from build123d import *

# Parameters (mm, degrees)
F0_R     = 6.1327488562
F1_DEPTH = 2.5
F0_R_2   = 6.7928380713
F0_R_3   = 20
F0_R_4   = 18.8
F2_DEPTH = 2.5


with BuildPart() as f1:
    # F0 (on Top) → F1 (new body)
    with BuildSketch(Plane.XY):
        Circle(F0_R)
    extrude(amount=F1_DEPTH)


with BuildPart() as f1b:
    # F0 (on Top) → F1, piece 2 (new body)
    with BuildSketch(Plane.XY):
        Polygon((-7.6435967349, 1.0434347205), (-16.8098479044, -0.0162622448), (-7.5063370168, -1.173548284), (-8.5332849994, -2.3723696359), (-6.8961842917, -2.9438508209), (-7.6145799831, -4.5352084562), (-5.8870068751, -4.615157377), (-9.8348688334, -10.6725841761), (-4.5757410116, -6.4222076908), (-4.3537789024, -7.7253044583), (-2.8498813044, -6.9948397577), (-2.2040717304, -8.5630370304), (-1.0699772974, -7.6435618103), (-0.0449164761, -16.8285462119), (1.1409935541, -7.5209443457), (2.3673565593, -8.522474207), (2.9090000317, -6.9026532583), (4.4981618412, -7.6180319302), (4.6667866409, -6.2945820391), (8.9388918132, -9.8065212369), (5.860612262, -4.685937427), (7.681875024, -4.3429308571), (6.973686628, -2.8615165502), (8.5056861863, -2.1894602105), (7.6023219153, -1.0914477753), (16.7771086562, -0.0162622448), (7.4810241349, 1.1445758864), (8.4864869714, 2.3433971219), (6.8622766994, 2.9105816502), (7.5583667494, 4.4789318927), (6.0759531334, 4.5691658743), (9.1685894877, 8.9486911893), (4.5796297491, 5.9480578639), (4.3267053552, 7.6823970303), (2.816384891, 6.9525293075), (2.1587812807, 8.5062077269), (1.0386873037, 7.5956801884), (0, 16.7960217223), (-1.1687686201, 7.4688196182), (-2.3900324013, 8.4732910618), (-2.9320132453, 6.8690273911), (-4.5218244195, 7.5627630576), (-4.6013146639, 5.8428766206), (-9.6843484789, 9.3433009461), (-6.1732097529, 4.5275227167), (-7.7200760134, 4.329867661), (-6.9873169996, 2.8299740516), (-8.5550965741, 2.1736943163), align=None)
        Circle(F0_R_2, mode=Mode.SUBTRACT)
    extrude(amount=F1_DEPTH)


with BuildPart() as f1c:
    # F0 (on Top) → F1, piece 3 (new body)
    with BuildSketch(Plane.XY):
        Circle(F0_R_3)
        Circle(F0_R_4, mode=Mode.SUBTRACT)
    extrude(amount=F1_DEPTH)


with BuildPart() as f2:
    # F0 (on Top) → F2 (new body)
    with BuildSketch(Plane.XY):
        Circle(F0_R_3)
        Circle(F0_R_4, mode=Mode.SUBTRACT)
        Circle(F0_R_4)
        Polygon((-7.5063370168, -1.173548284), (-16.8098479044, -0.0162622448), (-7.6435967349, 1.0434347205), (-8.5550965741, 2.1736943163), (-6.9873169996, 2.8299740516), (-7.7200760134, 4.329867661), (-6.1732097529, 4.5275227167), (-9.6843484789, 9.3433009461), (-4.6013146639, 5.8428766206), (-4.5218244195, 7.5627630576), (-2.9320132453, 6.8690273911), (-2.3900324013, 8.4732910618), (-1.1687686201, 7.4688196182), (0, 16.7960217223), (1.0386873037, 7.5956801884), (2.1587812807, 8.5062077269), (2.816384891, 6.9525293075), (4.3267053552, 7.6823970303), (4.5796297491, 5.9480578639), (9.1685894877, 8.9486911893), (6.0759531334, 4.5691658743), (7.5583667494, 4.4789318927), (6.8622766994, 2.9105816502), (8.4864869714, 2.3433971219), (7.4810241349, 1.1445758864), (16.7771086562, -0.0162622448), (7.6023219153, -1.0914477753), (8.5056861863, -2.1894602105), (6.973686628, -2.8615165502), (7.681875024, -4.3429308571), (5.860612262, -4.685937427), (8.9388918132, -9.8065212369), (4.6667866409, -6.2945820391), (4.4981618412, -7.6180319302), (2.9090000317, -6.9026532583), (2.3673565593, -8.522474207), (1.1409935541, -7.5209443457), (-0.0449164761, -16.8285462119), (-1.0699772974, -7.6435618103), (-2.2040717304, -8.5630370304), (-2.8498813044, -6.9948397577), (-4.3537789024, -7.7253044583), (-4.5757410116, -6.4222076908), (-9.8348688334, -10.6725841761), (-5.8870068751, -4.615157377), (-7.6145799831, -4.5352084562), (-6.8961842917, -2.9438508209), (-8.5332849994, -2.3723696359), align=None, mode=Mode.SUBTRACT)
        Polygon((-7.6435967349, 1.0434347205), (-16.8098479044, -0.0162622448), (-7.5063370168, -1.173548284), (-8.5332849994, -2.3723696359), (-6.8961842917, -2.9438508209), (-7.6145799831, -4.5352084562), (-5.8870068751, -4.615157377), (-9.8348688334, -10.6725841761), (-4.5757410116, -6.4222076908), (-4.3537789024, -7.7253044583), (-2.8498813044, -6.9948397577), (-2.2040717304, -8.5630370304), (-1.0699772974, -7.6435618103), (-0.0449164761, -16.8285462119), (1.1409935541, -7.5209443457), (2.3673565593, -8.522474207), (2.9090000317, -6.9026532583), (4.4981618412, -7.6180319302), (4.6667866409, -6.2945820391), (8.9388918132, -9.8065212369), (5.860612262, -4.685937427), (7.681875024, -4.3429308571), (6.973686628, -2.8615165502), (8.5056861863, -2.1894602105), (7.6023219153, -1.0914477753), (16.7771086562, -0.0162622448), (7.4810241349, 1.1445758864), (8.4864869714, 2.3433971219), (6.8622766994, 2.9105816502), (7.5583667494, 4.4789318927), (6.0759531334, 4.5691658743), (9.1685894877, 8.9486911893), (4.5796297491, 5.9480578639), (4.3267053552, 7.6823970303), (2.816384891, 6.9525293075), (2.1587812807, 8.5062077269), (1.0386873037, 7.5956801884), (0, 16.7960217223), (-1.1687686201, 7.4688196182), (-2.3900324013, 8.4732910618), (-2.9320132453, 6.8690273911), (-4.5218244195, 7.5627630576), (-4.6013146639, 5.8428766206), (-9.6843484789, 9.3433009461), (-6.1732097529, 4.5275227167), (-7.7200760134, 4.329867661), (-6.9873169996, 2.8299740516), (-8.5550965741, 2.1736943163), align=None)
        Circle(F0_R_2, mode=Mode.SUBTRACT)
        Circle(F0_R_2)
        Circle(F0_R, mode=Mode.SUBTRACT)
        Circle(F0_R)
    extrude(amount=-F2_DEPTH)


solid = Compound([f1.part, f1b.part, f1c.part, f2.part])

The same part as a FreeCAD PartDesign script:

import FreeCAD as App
import Part
import Sketcher

V = App.Vector
Q = App.Units.Quantity

doc = App.newDocument("Part")
body = doc.addObject("PartDesign::Body", "Body")

sketch1 = body.newObject("Sketcher::SketchObject", "Sketch")
sketch1.AttachmentSupport = (doc.getObject("XY_Plane"), [""])
sketch1.MapMode = "FlatFace"
sketch1.addGeometry(Part.Circle(V(0, 0, 0), V(0, 0, 1), 6), False)
sketch1.addConstraint([
    Sketcher.Constraint("Coincident", 0, 3, -1, 1),
    Sketcher.Constraint("Diameter", 0, Q("12.265498 mm")),
])
pad1 = body.newObject("PartDesign::Pad", "Pad")
pad1.Profile = sketch1
pad1.Length = 2.5
body2 = doc.addObject("PartDesign::Body", "Body001")

sketch2 = body2.newObject("Sketcher::SketchObject", "Sketch001")
sketch2.AttachmentSupport = (doc.getObject("XY_Plane001"), [""])
sketch2.MapMode = "FlatFace"
sketch2.addGeometry([
    Part.LineSegment(V(-7.6, 1, 0), V(-16.8, 0, 0)),
    Part.LineSegment(V(-16.8, 0, 0), V(-7.5, -1.2, 0)),
    Part.LineSegment(V(-7.5, -1.2, 0), V(-8.5, -2.4, 0)),
    Part.LineSegment(V(-8.5, -2.4, 0), V(-6.9, -2.9, 0)),
    Part.LineSegment(V(-6.9, -2.9, 0), V(-7.6, -4.5, 0)),
    Part.LineSegment(V(-7.6, -4.5, 0), V(-5.9, -4.6, 0)),
    Part.LineSegment(V(-5.9, -4.6, 0), V(-9.8, -10.7, 0)),
    Part.LineSegment(V(-9.8, -10.7, 0), V(-4.6, -6.4, 0)),
    Part.LineSegment(V(-4.6, -6.4, 0), V(-4.4, -7.7, 0)),
    Part.LineSegment(V(-4.4, -7.7, 0), V(-2.8, -7, 0)),
    Part.LineSegment(V(-2.8, -7, 0), V(-2.2, -8.6, 0)),
    Part.LineSegment(V(-2.2, -8.6, 0), V(-1.1, -7.6, 0)),
    Part.LineSegment(V(-1.1, -7.6, 0), V(0, -16.8, 0)),
    Part.LineSegment(V(0, -16.8, 0), V(1.1, -7.5, 0)),
    Part.LineSegment(V(1.1, -7.5, 0), V(2.4, -8.5, 0)),
    Part.LineSegment(V(2.4, -8.5, 0), V(2.9, -6.9, 0)),
    Part.LineSegment(V(2.9, -6.9, 0), V(4.5, -7.6, 0)),
    Part.LineSegment(V(4.5, -7.6, 0), V(4.7, -6.3, 0)),
    Part.LineSegment(V(4.7, -6.3, 0), V(8.9, -9.8, 0)),
    Part.LineSegment(V(8.9, -9.8, 0), V(5.9, -4.7, 0)),
    Part.LineSegment(V(5.9, -4.7, 0), V(7.7, -4.3, 0)),
    Part.LineSegment(V(7.7, -4.3, 0), V(7, -2.9, 0)),
    Part.LineSegment(V(7, -2.9, 0), V(8.5, -2.2, 0)),
    Part.LineSegment(V(8.5, -2.2, 0), V(7.6, -1.1, 0)),
    Part.LineSegment(V(7.6, -1.1, 0), V(16.8, 0, 0)),
    Part.LineSegment(V(16.8, 0, 0), V(7.5, 1.1, 0)),
    Part.LineSegment(V(7.5, 1.1, 0), V(8.5, 2.3, 0)),
    Part.LineSegment(V(8.5, 2.3, 0), V(6.9, 2.9, 0)),
    Part.LineSegment(V(6.9, 2.9, 0), V(7.6, 4.5, 0)),
    Part.LineSegment(V(7.6, 4.5, 0), V(6.1, 4.6, 0)),
    Part.LineSegment(V(6.1, 4.6, 0), V(9.2, 8.9, 0)),
    Part.LineSegment(V(9.2, 8.9, 0), V(4.6, 5.9, 0)),
    Part.LineSegment(V(4.6, 5.9, 0), V(4.3, 7.7, 0)),
    Part.LineSegment(V(4.3, 7.7, 0), V(2.8, 7, 0)),
    Part.LineSegment(V(2.8, 7, 0), V(2.2, 8.5, 0)),
    Part.LineSegment(V(2.2, 8.5, 0), V(1, 7.6, 0)),
    Part.LineSegment(V(1, 7.6, 0), V(0, 16.8, 0)),
    Part.LineSegment(V(0, 16.8, 0), V(-1.2, 7.5, 0)),
    Part.LineSegment(V(-1.2, 7.5, 0), V(-2.4, 8.5, 0)),
    Part.LineSegment(V(-2.4, 8.5, 0), V(-2.9, 6.9, 0)),
    Part.LineSegment(V(-2.9, 6.9, 0), V(-4.5, 7.6, 0)),
    Part.LineSegment(V(-4.5, 7.6, 0), V(-4.6, 5.8, 0)),
    Part.LineSegment(V(-4.6, 5.8, 0), V(-9.7, 9.3, 0)),
    Part.LineSegment(V(-9.7, 9.3, 0), V(-6.2, 4.5, 0)),
    Part.LineSegment(V(-6.2, 4.5, 0), V(-7.7, 4.3, 0)),
    Part.LineSegment(V(-7.7, 4.3, 0), V(-7, 2.8, 0)),
    Part.LineSegment(V(-7, 2.8, 0), V(-8.6, 2.2, 0)),
    Part.LineSegment(V(-8.6, 2.2, 0), V(-7.6, 1, 0)),
    Part.Circle(V(0, 0, 0), V(0, 0, 1), 6.8),
], False)
sketch2.addConstraint([
    Sketcher.Constraint("Coincident", 0, 2, 1, 1),
    Sketcher.Constraint("Coincident", 1, 2, 2, 1),
    Sketcher.Constraint("Coincident", 2, 2, 3, 1),
    Sketcher.Constraint("Coincident", 3, 2, 4, 1),
    Sketcher.Constraint("Coincident", 4, 2, 5, 1),
    Sketcher.Constraint("Coincident", 5, 2, 6, 1),
    Sketcher.Constraint("Coincident", 6, 2, 7, 1),
    Sketcher.Constraint("Coincident", 7, 2, 8, 1),
    Sketcher.Constraint("Coincident", 8, 2, 9, 1),
    Sketcher.Constraint("Coincident", 9, 2, 10, 1),
    Sketcher.Constraint("Coincident", 10, 2, 11, 1),
    Sketcher.Constraint("Coincident", 11, 2, 12, 1),
    Sketcher.Constraint("Coincident", 12, 2, 13, 1),
    Sketcher.Constraint("Coincident", 13, 2, 14, 1),
    Sketcher.Constraint("Coincident", 14, 2, 15, 1),
    Sketcher.Constraint("Coincident", 15, 2, 16, 1),
    Sketcher.Constraint("Coincident", 16, 2, 17, 1),
    Sketcher.Constraint("Coincident", 17, 2, 18, 1),
    Sketcher.Constraint("Coincident", 18, 2, 19, 1),
    Sketcher.Constraint("Coincident", 19, 2, 20, 1),
    Sketcher.Constraint("Coincident", 20, 2, 21, 1),
    Sketcher.Constraint("Coincident", 21, 2, 22, 1),
    Sketcher.Constraint("Coincident", 22, 2, 23, 1),
    Sketcher.Constraint("Coincident", 23, 2, 24, 1),
    Sketcher.Constraint("Coincident", 24, 2, 25, 1),
    Sketcher.Constraint("Coincident", 25, 2, 26, 1),
    Sketcher.Constraint("Coincident", 26, 2, 27, 1),
    Sketcher.Constraint("Coincident", 27, 2, 28, 1),
    Sketcher.Constraint("Coincident", 28, 2, 29, 1),
    Sketcher.Constraint("Coincident", 29, 2, 30, 1),
    Sketcher.Constraint("Coincident", 30, 2, 31, 1),
    Sketcher.Constraint("Coincident", 31, 2, 32, 1),
    Sketcher.Constraint("Coincident", 32, 2, 33, 1),
    Sketcher.Constraint("Coincident", 33, 2, 34, 1),
    Sketcher.Constraint("Coincident", 34, 2, 35, 1),
    Sketcher.Constraint("Coincident", 35, 2, 36, 1),
    Sketcher.Constraint("Coincident", 36, 2, 37, 1),
    Sketcher.Constraint("Coincident", 37, 2, 38, 1),
    Sketcher.Constraint("Coincident", 38, 2, 39, 1),
    Sketcher.Constraint("Coincident", 39, 2, 40, 1),
    Sketcher.Constraint("Coincident", 40, 2, 41, 1),
    Sketcher.Constraint("Coincident", 41, 2, 42, 1),
    Sketcher.Constraint("Coincident", 42, 2, 43, 1),
    Sketcher.Constraint("Coincident", 43, 2, 44, 1),
    Sketcher.Constraint("Coincident", 44, 2, 45, 1),
    Sketcher.Constraint("Coincident", 45, 2, 46, 1),
    Sketcher.Constraint("Coincident", 46, 2, 47, 1),
    Sketcher.Constraint("Coincident", 47, 2, 0, 1),
    Sketcher.Constraint("Coincident", 48, 3, -1, 1),
    Sketcher.Constraint("PointOnObject", 36, 2, -2),
    Sketcher.Constraint("Parallel", 13, 17),
    Sketcher.Constraint("Horizontal", 0, 2, 24, 2),
    Sketcher.Constraint("Distance", 11, Q("1.460002 mm")),
    Sketcher.Constraint("DistanceX", 41, 2, 35, 2, Q("5.640002 mm")),
    Sketcher.Constraint("Distance", 4, Q("1.745999 mm")),
    Sketcher.Constraint("Diameter", 48, Q("13.585676 mm")),
    Sketcher.Constraint("DistanceX", -1, 1, 15, 2, Q("2.909 mm")),
    Sketcher.Constraint("DistanceY", 7, 2, 4, 2, Q("1.886999 mm")),
    Sketcher.Constraint("DistanceX", 21, 2, 22, 2, Q("1.532 mm")),
    Sketcher.Constraint("Distance", 46, Q("1.699599 mm")),
    Sketcher.Constraint("DistanceY", -1, 1, 42, 2, Q("9.343301 mm")),
    Sketcher.Constraint("DistanceX", 2, 2, 3, 2, Q("1.637101 mm")),
    Sketcher.Constraint("DistanceX", 4, 2, 8, 2, Q("3.260801 mm")),
    Sketcher.Constraint("DistanceX", 4, 2, 9, 2, Q("4.764699 mm")),
    Sketcher.Constraint("DistanceX", 8, 2, 11, 2, Q("3.283802 mm")),
    Sketcher.Constraint("DistanceX", 13, 2, 18, 2, Q("7.797898 mm")),
    Sketcher.Constraint("DistanceY", 16, 2, 20, 2, Q("3.275101 mm")),
    Sketcher.Constraint("DistanceX", 17, 2, 21, 2, Q("2.3069 mm")),
    Sketcher.Constraint("DistanceX", 26, 2, 22, 2, Q("0.019199 mm")),
    Sketcher.Constraint("DistanceY", 21, 2, 27, 2, Q("5.772098 mm")),
    Sketcher.Constraint("DistanceX", 37, 2, 31, 2, Q("5.748398 mm")),
    Sketcher.Constraint("DistanceX", 39, 2, 35, 2, Q("3.970701 mm")),
    Sketcher.Constraint("DistanceX", 39, 2, 33, 2, Q("5.748398 mm")),
    Sketcher.Constraint("DistanceY", 39, 2, 33, 2, Q("0.083502 mm")),
    Sketcher.Constraint("DistanceX", 46, 2, 47, 2, Q("0.9115 mm")),
    Sketcher.Constraint("Distance", 2, Q("1.578542 mm")),
    Sketcher.Constraint("Distance", 3, Q("1.733981 mm")),
    Sketcher.Constraint("Distance", 7, Q("6.761962 mm")),
    Sketcher.Constraint("Distance", 9, Q("1.671911 mm")),
    Sketcher.Constraint("Distance", 10, Q("1.69597 mm")),
    Sketcher.Constraint("Distance", 14, Q("1.58336 mm")),
    Sketcher.Constraint("Distance", 15, Q("1.707981 mm")),
    Sketcher.Constraint("Distance", 17, Q("1.334149 mm")),
    Sketcher.Constraint("Distance", 19, Q("5.974628 mm")),
    Sketcher.Constraint("Distance", 20, Q("1.853281 mm")),
    Sketcher.Constraint("Distance", 24, Q("9.237572 mm")),
    Sketcher.Constraint("Distance", 26, Q("1.564649 mm")),
    Sketcher.Constraint("Distance", 33, Q("1.677431 mm")),
    Sketcher.Constraint("Distance", 36, Q("9.258788 mm")),
    Sketcher.Constraint("Distance", 38, Q("1.581281 mm")),
    Sketcher.Constraint("Distance", 39, Q("1.693341 mm")),
    Sketcher.Constraint("Distance", 40, Q("1.73458 mm")),
    Sketcher.Constraint("Distance", 43, Q("5.95985 mm")),
    Sketcher.Constraint("DistanceY", 1, 2, -1, 1, Q("1.173548 mm")),
    Sketcher.Constraint("DistanceY", 2, 2, -1, 1, Q("2.37237 mm")),
    Sketcher.Constraint("DistanceX", 4, 2, -1, 1, Q("7.61458 mm")),
    Sketcher.Constraint("DistanceY", 4, 2, -1, 1, Q("4.535208 mm")),
    Sketcher.Constraint("DistanceX", 6, 2, -1, 1, Q("9.834869 mm")),
    Sketcher.Constraint("DistanceX", 7, 2, -1, 1, Q("4.575741 mm")),
    Sketcher.Constraint("DistanceY", 9, 2, -1, 1, Q("6.99484 mm")),
    Sketcher.Constraint("DistanceX", 10, 2, -1, 1, Q("2.204072 mm")),
    Sketcher.Constraint("DistanceX", -1, 1, 16, 2, Q("4.498162 mm")),
    Sketcher.Constraint("DistanceY", 16, 2, -1, 1, Q("7.618032 mm")),
    Sketcher.Constraint("DistanceX", -1, 1, 18, 2, Q("8.938892 mm")),
    Sketcher.Constraint("DistanceY", 18, 2, -1, 1, Q("9.806521 mm")),
    Sketcher.Constraint("DistanceY", 22, 2, -1, 1, Q("2.18946 mm")),
    Sketcher.Constraint("DistanceX", -1, 1, 23, 2, Q("7.602322 mm")),
    Sketcher.Constraint("DistanceX", -1, 1, 24, 2, Q("16.777109 mm")),
    Sketcher.Constraint("DistanceY", -1, 1, 27, 2, Q("2.910582 mm")),
    Sketcher.Constraint("DistanceY", -1, 1, 28, 2, Q("4.478932 mm")),
    Sketcher.Constraint("DistanceX", -1, 1, 30, 2, Q("9.168589 mm")),
    Sketcher.Constraint("DistanceY", -1, 1, 30, 2, Q("8.948691 mm")),
    Sketcher.Constraint("DistanceX", -1, 1, 31, 2, Q("4.57963 mm")),
    Sketcher.Constraint("DistanceY", -1, 1, 33, 2, Q("6.952529 mm")),
    Sketcher.Constraint("DistanceX", -1, 1, 34, 2, Q("2.158781 mm")),
    Sketcher.Constraint("DistanceY", -1, 1, 35, 2, Q("7.59568 mm")),
    Sketcher.Constraint("DistanceY", -1, 1, 36, 2, Q("16.796022 mm")),
    Sketcher.Constraint("DistanceY", -1, 1, 37, 2, Q("7.46882 mm")),
    Sketcher.Constraint("DistanceX", 42, 2, -1, 1, Q("9.684348 mm")),
    Sketcher.Constraint("DistanceX", 43, 2, -1, 1, Q("6.17321 mm")),
    Sketcher.Constraint("DistanceX", 0, 2, 1, 2, Q("9.303511 mm")),
    Sketcher.Constraint("DistanceY", 3, 2, 0, 2, Q("2.927589 mm")),
    Sketcher.Constraint("DistanceY", 5, 2, 4, 2, Q("0.079949 mm")),
    Sketcher.Constraint("DistanceX", 2, 2, 5, 2, Q("2.646278 mm")),
    Sketcher.Constraint("DistanceY", 12, 2, 10, 2, Q("8.265509 mm")),
    Sketcher.Constraint("DistanceX", 11, 2, 12, 2, Q("1.025061 mm")),
    Sketcher.Constraint("DistanceY", 8, 2, 13, 2, Q("0.20436 mm")),
    Sketcher.Constraint("DistanceY", 14, 2, 13, 2, Q("1.00153 mm")),
    Sketcher.Constraint("DistanceX", 16, 2, 19, 2, Q("1.36245 mm")),
    Sketcher.Constraint("DistanceX", 25, 2, 20, 2, Q("0.200851 mm")),
    Sketcher.Constraint("DistanceX", 27, 2, 26, 2, Q("1.62421 mm")),
    Sketcher.Constraint("DistanceX", 27, 2, 28, 2, Q("0.69609 mm")),
    Sketcher.Constraint("DistanceY", 26, 2, 29, 2, Q("2.225769 mm")),
    Sketcher.Constraint("DistanceX", 29, 2, 25, 2, Q("1.405071 mm")),
    Sketcher.Constraint("DistanceY", 29, 2, 31, 2, Q("1.378892 mm")),
    Sketcher.Constraint("DistanceY", 31, 2, 32, 2, Q("1.734339 mm")),
    Sketcher.Constraint("DistanceX", 32, 2, 28, 2, Q("3.231661 mm")),
    Sketcher.Constraint("DistanceY", 33, 2, 34, 2, Q("1.553678 mm")),
    Sketcher.Constraint("DistanceX", 40, 2, 39, 2, Q("1.589811 mm")),
    Sketcher.Constraint("DistanceY", 41, 2, 39, 2, Q("1.026151 mm")),
    Sketcher.Constraint("DistanceX", 44, 2, 41, 2, Q("3.118761 mm")),
    Sketcher.Constraint("DistanceY", 44, 2, 41, 2, Q("1.513009 mm")),
    Sketcher.Constraint("DistanceX", 44, 2, 45, 2, Q("0.732759 mm")),
    Sketcher.Constraint("DistanceY", 45, 2, 43, 2, Q("1.697549 mm")),
    Sketcher.Constraint("DistanceX", 46, 2, 45, 2, Q("1.56778 mm")),
    Sketcher.Constraint("DistanceY", 47, 2, 46, 2, Q("1.13026 mm")),
])
pad2 = body2.newObject("PartDesign::Pad", "Pad001")
pad2.Profile = sketch2
pad2.Length = 2.5
body3 = doc.addObject("PartDesign::Body", "Body002")

sketch3 = body3.newObject("Sketcher::SketchObject", "Sketch002")
sketch3.AttachmentSupport = (doc.getObject("XY_Plane002"), [""])
sketch3.MapMode = "FlatFace"
sketch3.addGeometry([
    Part.Circle(V(0, 0, 0), V(0, 0, 1), 20),
    Part.Circle(V(0, 0, 0), V(0, 0, 1), 19),
], False)
sketch3.addConstraint([
    Sketcher.Constraint("Coincident", 0, 3, -1, 1),
    Sketcher.Constraint("Coincident", 1, 3, -1, 1),
    Sketcher.Constraint("Diameter", 0, Q("40 mm")),
    Sketcher.Constraint("Diameter", 1, Q("37.6 mm")),
])
pad3 = body3.newObject("PartDesign::Pad", "Pad002")
pad3.Profile = sketch3
pad3.Length = 2.5
body4 = doc.addObject("PartDesign::Body", "Body003")

sketch4 = body4.newObject("Sketcher::SketchObject", "Sketch003")
sketch4.AttachmentSupport = (doc.getObject("XY_Plane003"), [""])
sketch4.MapMode = "FlatFace"
sketch4.addGeometry(Part.Circle(V(0, 0, 0), V(0, 0, 1), 20), False)
sketch4.addConstraint([
    Sketcher.Constraint("Coincident", 0, 3, -1, 1),
    Sketcher.Constraint("Diameter", 0, Q("40 mm")),
])
pad4 = body4.newObject("PartDesign::Pad", "Pad003")
pad4.Profile = sketch4
pad4.Length = 2.5
pad4.Reversed = True

doc.recompute()
